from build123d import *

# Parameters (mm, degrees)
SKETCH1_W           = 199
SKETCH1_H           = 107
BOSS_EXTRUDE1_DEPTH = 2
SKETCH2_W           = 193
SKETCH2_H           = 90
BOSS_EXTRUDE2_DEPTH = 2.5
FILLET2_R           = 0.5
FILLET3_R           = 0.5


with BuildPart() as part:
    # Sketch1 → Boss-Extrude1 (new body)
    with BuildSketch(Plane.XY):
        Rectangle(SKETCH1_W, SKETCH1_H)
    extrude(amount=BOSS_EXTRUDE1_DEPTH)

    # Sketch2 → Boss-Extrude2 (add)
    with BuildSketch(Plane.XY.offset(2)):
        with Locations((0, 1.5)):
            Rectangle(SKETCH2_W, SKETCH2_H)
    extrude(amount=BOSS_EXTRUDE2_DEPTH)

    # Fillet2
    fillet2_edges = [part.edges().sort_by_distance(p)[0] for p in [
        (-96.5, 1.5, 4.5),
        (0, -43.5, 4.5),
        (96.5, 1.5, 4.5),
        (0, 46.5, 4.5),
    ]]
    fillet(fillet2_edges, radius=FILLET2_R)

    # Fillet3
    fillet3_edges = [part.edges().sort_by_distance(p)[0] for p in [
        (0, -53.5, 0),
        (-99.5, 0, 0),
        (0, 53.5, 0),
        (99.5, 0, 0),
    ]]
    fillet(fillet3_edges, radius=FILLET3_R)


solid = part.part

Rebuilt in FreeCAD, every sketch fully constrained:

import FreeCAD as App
import Part
import Sketcher
from FreeCAD import Vector
Q = App.Units.Quantity


def edges_at(feature, points):
    """Names of the edges that pass closest to the given points."""
    edges = feature.Shape.Edges
    near = lambda p: min(range(len(edges)), key=lambda i: edges[i].distToShape(Part.Vertex(*p))[0])
    return sorted({f"Edge{near(p) + 1}" for p in points})

doc = App.newDocument("Part")
body = doc.addObject("PartDesign::Body", "Body")

# Sketch on XY plane
sketch1 = doc.addObject("Sketcher::SketchObject", "Sketch")
body.addObject(sketch1)
sketch1.AttachmentSupport = (doc.XY_Plane, [""])
sketch1.MapMode = "FlatFace"
sketch1.addGeometry([
    Part.LineSegment(Vector(-100, 54, 0), Vector(-100, -54, 0)),
    Part.LineSegment(Vector(-100, -54, 0), Vector(100, -54, 0)),
    Part.LineSegment(Vector(100, -54, 0), Vector(100, 54, 0)),
    Part.LineSegment(Vector(100, 54, 0), Vector(-100, 54, 0)),
], False)
sketch1.addConstraint([
    Sketcher.Constraint("Coincident", 0, 2, 1, 1),
    Sketcher.Constraint("Coincident", 1, 2, 2, 1),
    Sketcher.Constraint("Coincident", 2, 2, 3, 1),
    Sketcher.Constraint("Coincident", 3, 2, 0, 1),
    Sketcher.Constraint("Vertical", 0),
    Sketcher.Constraint("Horizontal", 1),
    Sketcher.Constraint("Vertical", 2),
    Sketcher.Constraint("Horizontal", 3),
    Sketcher.Constraint("Symmetric", 0, 2, 2, 2, -1, 1),
    Sketcher.Constraint("DistanceX", 1, 1, 1, 2, Q("199 mm")),
    Sketcher.Constraint("DistanceY", 0, 2, 0, 1, Q("107 mm")),
])
pad1 = doc.addObject("PartDesign::Pad", "Pad")
body.addObject(pad1)
pad1.Profile = sketch1
pad1.Length = 2

# Sketch on XY plane
sketch2 = doc.addObject("Sketcher::SketchObject", "Sketch001")
body.addObject(sketch2)
sketch2.AttachmentSupport = (doc.XY_Plane, [""])
sketch2.MapMode = "FlatFace"
sketch2.AttachmentOffset = App.Placement(Vector(0, 0, 2), App.Rotation())
sketch2.addGeometry([
    Part.LineSegment(Vector(-96, 46, 0), Vector(-96, -44, 0)),
    Part.LineSegment(Vector(-96, -44, 0), Vector(96, -44, 0)),
    Part.LineSegment(Vector(96, -44, 0), Vector(96, 46, 0)),
    Part.LineSegment(Vector(96, 46, 0), Vector(-96, 46, 0)),
], False)
sketch2.addConstraint([
    Sketcher.Constraint("Coincident", 0, 2, 1, 1),
    Sketcher.Constraint("Coincident", 1, 2, 2, 1),
    Sketcher.Constraint("Coincident", 2, 2, 3, 1),
    Sketcher.Constraint("Coincident", 3, 2, 0, 1),
    Sketcher.Constraint("Vertical", 0),
    Sketcher.Constraint("Horizontal", 1),
    Sketcher.Constraint("Vertical", 2),
    Sketcher.Constraint("Horizontal", 3),
    Sketcher.Constraint("DistanceX", 1, 1, 1, 2, Q("193 mm")),
    Sketcher.Constraint("DistanceY", 0, 2, 0, 1, Q("90 mm")),
    Sketcher.Constraint("DistanceX", 0, 2, -1, 1, Q("96.5 mm")),
    Sketcher.Constraint("DistanceY", 0, 2, -1, 1, Q("43.5 mm")),
])
pad2 = doc.addObject("PartDesign::Pad", "Pad001")
body.addObject(pad2)
pad2.Profile = sketch2
pad2.Length = 2.5
doc.recompute()

fillet = doc.addObject("PartDesign::Fillet", "Fillet")
body.addObject(fillet)
fillet.Base = (pad2, edges_at(pad2, [
    (-96.5, 1.5, 4.5),
    (0, -43.5, 4.5),
    (96.5, 1.5, 4.5),
    (0, 46.5, 4.5),
]))
fillet.Radius = 0.5
doc.recompute()

fillet2 = doc.addObject("PartDesign::Fillet", "Fillet001")
body.addObject(fillet2)
fillet2.Base = (fillet, edges_at(fillet, [
    (0, -53.5, 0),
    (-99.5, 0, 0),
    (0, 53.5, 0),
    (99.5, 0, 0),
]))
fillet2.Radius = 0.5

doc.recompute()
